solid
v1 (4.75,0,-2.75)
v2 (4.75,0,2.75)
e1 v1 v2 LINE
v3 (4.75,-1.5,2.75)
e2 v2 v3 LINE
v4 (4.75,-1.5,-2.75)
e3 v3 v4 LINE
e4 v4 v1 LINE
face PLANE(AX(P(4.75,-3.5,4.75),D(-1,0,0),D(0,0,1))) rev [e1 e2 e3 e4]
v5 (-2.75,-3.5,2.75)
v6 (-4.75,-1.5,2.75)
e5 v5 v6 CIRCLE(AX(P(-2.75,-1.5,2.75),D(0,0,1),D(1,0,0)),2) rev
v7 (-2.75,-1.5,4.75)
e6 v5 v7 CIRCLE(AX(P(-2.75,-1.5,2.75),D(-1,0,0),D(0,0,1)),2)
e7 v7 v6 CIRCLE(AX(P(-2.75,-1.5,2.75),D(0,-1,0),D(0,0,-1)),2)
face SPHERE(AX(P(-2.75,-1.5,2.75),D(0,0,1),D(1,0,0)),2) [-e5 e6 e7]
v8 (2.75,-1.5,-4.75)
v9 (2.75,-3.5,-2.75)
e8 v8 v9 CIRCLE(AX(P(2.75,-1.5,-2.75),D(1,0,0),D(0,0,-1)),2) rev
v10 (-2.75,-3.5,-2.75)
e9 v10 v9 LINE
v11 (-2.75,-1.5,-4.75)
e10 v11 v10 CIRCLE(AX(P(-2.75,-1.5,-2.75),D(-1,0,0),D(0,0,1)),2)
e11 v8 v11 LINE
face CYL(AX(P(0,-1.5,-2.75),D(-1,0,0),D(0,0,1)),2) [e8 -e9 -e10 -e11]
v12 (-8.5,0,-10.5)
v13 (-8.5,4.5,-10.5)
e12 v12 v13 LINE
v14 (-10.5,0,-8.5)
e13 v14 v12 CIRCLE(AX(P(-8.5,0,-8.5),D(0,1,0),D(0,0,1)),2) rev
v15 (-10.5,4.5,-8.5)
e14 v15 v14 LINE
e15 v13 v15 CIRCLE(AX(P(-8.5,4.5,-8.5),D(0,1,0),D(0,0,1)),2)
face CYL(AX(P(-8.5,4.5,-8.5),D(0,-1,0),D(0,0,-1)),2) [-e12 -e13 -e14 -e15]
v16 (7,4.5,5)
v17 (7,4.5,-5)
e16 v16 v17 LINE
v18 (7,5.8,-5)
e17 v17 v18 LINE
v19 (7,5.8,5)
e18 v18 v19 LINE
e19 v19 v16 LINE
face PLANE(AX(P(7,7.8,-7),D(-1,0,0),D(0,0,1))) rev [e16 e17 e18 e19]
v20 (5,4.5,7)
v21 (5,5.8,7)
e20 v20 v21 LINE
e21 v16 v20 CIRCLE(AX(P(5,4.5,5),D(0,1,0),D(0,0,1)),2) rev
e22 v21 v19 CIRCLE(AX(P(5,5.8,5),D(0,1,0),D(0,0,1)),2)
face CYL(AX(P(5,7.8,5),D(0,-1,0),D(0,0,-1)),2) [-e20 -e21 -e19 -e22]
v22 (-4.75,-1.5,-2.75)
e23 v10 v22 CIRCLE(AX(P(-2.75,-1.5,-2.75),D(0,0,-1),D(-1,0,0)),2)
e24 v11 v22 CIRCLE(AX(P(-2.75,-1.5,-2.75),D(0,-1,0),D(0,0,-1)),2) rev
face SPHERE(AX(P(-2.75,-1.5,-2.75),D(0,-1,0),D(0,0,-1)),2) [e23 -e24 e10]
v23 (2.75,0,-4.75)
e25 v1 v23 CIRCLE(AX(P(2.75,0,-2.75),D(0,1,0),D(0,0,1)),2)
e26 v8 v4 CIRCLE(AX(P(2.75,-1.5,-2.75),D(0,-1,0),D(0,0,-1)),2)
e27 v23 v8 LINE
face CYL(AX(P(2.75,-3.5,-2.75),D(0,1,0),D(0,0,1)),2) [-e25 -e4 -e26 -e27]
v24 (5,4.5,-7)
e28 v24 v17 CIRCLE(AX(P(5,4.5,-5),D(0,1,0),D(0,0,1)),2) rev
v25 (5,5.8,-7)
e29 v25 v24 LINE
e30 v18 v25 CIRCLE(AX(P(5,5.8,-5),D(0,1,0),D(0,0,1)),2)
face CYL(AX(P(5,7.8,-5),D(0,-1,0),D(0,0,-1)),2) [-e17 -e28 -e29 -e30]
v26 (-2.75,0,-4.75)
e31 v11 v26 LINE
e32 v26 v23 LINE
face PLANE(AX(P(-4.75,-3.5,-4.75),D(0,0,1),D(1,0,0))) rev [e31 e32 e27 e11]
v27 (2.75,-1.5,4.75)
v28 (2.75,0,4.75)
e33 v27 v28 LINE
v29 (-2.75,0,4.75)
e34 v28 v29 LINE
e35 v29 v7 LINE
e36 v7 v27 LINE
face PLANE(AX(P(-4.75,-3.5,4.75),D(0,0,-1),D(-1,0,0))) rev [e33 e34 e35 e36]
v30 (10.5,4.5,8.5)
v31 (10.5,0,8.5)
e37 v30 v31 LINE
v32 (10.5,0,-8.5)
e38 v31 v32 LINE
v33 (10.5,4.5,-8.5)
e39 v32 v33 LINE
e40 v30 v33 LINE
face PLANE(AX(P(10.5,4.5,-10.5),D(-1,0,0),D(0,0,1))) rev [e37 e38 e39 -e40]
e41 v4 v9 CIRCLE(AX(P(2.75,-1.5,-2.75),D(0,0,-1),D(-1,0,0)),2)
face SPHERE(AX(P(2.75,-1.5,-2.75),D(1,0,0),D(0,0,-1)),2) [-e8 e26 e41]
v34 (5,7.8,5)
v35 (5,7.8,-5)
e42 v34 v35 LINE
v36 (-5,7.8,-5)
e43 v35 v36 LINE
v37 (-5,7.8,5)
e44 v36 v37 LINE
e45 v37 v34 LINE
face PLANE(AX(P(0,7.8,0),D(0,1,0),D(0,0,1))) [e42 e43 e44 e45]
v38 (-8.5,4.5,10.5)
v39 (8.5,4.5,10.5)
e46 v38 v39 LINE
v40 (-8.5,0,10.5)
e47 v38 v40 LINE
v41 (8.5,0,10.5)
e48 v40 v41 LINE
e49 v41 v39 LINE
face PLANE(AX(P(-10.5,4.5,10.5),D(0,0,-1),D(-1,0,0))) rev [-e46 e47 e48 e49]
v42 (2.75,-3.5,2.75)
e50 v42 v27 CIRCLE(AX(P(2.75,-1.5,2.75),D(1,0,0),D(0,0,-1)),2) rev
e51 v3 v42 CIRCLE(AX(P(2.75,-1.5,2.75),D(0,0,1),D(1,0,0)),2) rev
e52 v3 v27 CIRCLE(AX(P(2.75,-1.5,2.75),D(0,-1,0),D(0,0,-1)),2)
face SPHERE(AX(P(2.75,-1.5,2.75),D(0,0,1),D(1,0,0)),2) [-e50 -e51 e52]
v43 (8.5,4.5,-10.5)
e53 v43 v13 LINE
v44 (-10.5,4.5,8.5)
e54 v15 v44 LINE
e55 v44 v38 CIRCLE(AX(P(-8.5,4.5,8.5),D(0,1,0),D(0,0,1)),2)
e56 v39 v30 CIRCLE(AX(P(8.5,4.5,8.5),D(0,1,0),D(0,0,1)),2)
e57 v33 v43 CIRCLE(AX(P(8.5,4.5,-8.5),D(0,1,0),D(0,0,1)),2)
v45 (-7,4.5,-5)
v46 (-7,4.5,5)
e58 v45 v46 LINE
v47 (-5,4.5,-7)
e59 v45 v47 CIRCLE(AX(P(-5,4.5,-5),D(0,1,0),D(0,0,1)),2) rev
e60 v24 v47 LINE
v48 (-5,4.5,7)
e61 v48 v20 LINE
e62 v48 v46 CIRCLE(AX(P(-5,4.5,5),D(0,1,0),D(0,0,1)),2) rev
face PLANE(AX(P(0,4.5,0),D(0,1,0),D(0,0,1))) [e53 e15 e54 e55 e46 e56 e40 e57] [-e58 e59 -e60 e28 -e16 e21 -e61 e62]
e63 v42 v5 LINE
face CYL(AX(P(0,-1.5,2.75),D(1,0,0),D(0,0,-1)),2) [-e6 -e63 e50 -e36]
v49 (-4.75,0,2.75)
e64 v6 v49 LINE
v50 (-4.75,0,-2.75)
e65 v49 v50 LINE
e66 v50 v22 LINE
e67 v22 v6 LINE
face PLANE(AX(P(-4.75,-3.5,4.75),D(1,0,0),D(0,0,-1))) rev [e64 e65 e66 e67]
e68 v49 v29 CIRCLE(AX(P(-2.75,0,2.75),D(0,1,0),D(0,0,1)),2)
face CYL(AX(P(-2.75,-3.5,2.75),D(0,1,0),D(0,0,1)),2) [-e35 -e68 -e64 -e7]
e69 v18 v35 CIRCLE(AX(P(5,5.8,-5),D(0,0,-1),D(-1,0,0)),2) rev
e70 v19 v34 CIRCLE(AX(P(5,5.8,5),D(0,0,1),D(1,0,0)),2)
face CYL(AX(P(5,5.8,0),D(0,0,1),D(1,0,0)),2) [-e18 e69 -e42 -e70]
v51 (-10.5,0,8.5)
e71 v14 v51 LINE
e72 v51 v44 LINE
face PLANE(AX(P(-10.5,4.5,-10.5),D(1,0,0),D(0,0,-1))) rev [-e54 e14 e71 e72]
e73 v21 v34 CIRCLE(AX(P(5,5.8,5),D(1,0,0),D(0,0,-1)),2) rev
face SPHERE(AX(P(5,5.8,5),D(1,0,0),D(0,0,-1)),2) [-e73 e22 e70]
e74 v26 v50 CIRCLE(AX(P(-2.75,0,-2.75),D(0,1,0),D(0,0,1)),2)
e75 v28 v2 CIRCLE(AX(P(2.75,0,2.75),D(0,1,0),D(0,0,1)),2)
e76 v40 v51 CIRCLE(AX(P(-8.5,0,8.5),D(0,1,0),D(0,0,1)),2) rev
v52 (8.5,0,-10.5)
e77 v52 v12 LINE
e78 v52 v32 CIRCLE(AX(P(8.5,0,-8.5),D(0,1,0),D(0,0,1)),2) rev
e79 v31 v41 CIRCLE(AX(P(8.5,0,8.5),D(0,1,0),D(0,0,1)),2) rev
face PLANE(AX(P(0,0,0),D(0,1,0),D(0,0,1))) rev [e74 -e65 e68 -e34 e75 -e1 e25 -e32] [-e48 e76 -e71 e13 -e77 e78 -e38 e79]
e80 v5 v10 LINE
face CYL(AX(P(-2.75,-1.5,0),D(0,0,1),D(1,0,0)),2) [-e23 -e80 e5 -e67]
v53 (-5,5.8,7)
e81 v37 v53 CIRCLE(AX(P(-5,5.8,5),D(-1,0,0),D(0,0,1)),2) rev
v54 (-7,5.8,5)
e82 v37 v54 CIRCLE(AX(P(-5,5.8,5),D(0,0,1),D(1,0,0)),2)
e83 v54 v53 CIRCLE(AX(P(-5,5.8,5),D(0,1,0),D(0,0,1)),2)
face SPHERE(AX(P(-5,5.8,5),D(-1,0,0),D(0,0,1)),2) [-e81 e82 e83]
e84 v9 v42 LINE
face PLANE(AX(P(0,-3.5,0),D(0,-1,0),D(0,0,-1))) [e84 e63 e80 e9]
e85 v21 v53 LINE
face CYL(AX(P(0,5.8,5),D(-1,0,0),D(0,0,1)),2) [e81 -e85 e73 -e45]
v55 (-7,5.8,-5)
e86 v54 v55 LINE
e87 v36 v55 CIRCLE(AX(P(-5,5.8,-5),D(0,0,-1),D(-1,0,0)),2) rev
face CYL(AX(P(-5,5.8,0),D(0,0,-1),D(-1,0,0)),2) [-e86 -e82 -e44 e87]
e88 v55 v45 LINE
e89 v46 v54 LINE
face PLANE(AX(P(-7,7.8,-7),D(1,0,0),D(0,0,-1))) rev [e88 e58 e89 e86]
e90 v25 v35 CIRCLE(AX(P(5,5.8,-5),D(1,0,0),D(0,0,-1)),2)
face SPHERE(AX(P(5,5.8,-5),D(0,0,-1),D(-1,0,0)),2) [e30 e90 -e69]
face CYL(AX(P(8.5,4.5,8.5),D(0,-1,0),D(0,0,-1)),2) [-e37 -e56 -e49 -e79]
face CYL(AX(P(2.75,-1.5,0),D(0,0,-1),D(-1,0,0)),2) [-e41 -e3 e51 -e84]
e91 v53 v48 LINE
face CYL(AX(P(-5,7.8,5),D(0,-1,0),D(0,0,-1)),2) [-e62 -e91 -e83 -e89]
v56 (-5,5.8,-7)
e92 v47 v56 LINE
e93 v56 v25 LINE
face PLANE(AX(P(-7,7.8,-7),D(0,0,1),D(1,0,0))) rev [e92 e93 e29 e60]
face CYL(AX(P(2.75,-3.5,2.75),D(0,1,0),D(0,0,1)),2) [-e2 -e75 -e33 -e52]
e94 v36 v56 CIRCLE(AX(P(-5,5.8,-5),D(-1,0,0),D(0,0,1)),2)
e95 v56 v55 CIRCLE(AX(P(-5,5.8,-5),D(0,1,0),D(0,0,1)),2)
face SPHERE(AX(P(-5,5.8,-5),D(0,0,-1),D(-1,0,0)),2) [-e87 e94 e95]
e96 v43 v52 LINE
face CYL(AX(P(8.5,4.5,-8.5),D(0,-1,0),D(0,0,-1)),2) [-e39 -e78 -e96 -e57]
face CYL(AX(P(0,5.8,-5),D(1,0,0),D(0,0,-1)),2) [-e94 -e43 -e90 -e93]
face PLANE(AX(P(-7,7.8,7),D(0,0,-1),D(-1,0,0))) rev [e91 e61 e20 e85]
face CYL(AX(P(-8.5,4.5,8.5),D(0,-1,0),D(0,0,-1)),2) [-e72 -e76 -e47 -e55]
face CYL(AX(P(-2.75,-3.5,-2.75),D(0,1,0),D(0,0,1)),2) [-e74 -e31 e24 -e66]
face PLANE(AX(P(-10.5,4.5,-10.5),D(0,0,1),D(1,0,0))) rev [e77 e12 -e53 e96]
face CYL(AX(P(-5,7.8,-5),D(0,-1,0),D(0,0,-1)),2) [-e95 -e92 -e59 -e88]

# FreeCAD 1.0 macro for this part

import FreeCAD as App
import Part
import Sketcher

V = App.Vector


def edges_at(feature, points):
    """Names of the edges that pass closest to the given points."""
    edges = feature.Shape.Edges
    near = lambda p: min(range(len(edges)), key=lambda i: edges[i].distToShape(Part.Vertex(*p))[0])
    return sorted({f"Edge{near(p) + 1}" for p in points})


def add_polygon(sketch, points):
    """Adds a closed chain of lines whose ends are joined by coincident constraints."""
    first, n = sketch.GeometryCount, len(points)
    for a, b in zip(points, points[1:] + points[:1]):
        sketch.addGeometry(Part.LineSegment(App.Vector(*a, 0), App.Vector(*b, 0)), False)
    for i in range(n):
        sketch.addConstraint(Sketcher.Constraint("Coincident", first + i, 2, first + (i + 1) % n, 1))

doc = App.newDocument("Part")
body = doc.addObject("PartDesign::Body", "Body")

# Sketch on XZ plane
sketch1 = body.newObject("Sketcher::SketchObject", "Sketch")
sketch1.AttachmentSupport = (doc.getObject("XZ_Plane"), [""])
sketch1.MapMode = "FlatFace"
add_polygon(sketch1, [(-10.5, -10.5), (-10.5, 10.5), (10.5, 10.5), (10.5, -10.5)])  # lines 0-3
sketch1.addConstraint([
    Sketcher.Constraint("Vertical", 0),
    Sketcher.Constraint("Horizontal", 1),
    Sketcher.Constraint("Vertical", 2),
    Sketcher.Constraint("Horizontal", 3),
    Sketcher.Constraint("Symmetric", 0, 2, 2, 2, -1, 1),
    Sketcher.Constraint("Equal", 3, 0),
    Sketcher.Constraint("DistanceX", 1, 1, 1, 2, 21.0),
])
pad1 = body.newObject("PartDesign::Pad", "Pad")
pad1.Profile = sketch1
pad1.Length = 4.5
pad1.Reversed = True

# Sketch on XZ plane
sketch2 = body.newObject("Sketcher::SketchObject", "Sketch001")
sketch2.AttachmentSupport = (doc.getObject("XZ_Plane"), [""])
sketch2.MapMode = "FlatFace"
add_polygon(sketch2, [(-4.75, 4.75), (-4.75, -4.75), (4.75, -4.75), (4.75, 4.75)])  # lines 0-3
sketch2.addConstraint([
    Sketcher.Constraint("Vertical", 0),
    Sketcher.Constraint("Horizontal", 1),
    Sketcher.Constraint("Vertical", 2),
    Sketcher.Constraint("Horizontal", 3),
    Sketcher.Constraint("Symmetric", 0, 2, 2, 2, -1, 1),
    Sketcher.Constraint("Equal", 3, 0),
    Sketcher.Constraint("DistanceX", 1, 1, 1, 2, 9.5),
])
pad2 = body.newObject("PartDesign::Pad", "Pad001")
pad2.Profile = sketch2
pad2.Length = 3.5

# Sketch on XZ plane
sketch3 = body.newObject("Sketcher::SketchObject", "Sketch002")
sketch3.AttachmentSupport = (doc.getObject("XZ_Plane"), [""])
sketch3.MapMode = "FlatFace"
sketch3.AttachmentOffset = App.Placement(V(0, 0, -4.5), App.Rotation())
add_polygon(sketch3, [(-7, -7), (-7, 7), (7, 7), (7, -7)])  # lines 0-3
sketch3.addConstraint([
    Sketcher.Constraint("Vertical", 0),
    Sketcher.Constraint("Horizontal", 1),
    Sketcher.Constraint("Vertical", 2),
    Sketcher.Constraint("Horizontal", 3),
    Sketcher.Constraint("Symmetric", 0, 2, 2, 2, -1, 1),
    Sketcher.Constraint("Equal", 3, 0),
    Sketcher.Constraint("DistanceX", 1, 1, 1, 2, 14.0),
])
pad3 = body.newObject("PartDesign::Pad", "Pad002")
pad3.Profile = sketch3
pad3.Length = 3.3
pad3.Reversed = True
doc.recompute()

fillet = body.newObject("PartDesign::Fillet", "Fillet")
fillet.Base = (pad3, edges_at(pad3, [
    (10.5, 2.25, 10.5),
    (-10.5, 2.25, 10.5),
    (-10.5, 2.25, -10.5),
    (10.5, 2.25, -10.5),
]))
fillet.Radius = 2
doc.recompute()

fillet2 = body.newObject("PartDesign::Fillet", "Fillet001")
fillet2.Base = (fillet, edges_at(fillet, [
    (7, 6.15, 7),
    (7, 6.15, -7),
    (-7, 6.15, -7),
    (-7, 6.15, 7),
    (7, 7.8, 0),
    (0, 7.8, -7),
    (-7, 7.8, 0),
    (0, 7.8, 7),
]))
fillet2.Radius = 2
doc.recompute()

fillet3 = body.newObject("PartDesign::Fillet", "Fillet002")
fillet3.Base = (fillet2, edges_at(fillet2, [
    (4.75, -1.75, -4.75),
    (4.75, -1.75, 4.75),
    (-4.75, -1.75, 4.75),
    (-4.75, -1.75, -4.75),
    (4.75, -3.5, 0),
    (0, -3.5, 4.75),
    (-4.75, -3.5, 0),
    (0, -3.5, -4.75),
]))
fillet3.Radius = 2

doc.recompute()
